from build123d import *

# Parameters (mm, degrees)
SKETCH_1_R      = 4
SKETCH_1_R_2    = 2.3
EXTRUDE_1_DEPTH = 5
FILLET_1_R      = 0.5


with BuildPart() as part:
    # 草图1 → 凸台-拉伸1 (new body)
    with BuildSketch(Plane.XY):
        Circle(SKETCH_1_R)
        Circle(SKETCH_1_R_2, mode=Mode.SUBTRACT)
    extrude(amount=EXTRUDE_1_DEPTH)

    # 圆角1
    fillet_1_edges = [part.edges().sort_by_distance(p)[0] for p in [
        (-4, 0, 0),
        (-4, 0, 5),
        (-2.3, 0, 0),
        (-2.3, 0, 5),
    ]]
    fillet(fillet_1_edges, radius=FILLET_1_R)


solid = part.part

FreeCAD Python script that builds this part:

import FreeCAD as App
import Part
import Sketcher


def edges_at(feature, points):
    """Names of the edges that pass closest to the given points."""
    edges = feature.Shape.Edges
    near = lambda p: min(range(len(edges)), key=lambda i: edges[i].distToShape(Part.Vertex(*p))[0])
    return sorted({f"Edge{near(p) + 1}" for p in points})

doc = App.newDocument("Part")
params = doc.addObject("Spreadsheet::Sheet", "Params")
for row, (alias, value) in enumerate([
    ("sketch1_diameter", "8 mm"),
    ("sketch1_diameter2", "4.6 mm"),
    ("pad1_length", "5 mm"),
    ("fillet_radius", "0.5 mm"),
], start=1):
    params.set(f"A{row}", alias)
    params.set(f"B{row}", "=" + value)
    params.setAlias(f"B{row}", alias)

body = doc.addObject("PartDesign::Body", "Body")

# Sketch on XY plane
sketch1 = body.newObject("Sketcher::SketchObject", "Sketch")
sketch1.AttachmentSupport = (doc.getObject("XY_Plane"), [""])
sketch1.MapMode = "FlatFace"
sketch1.addGeometry([
    Part.Circle(App.Vector(0, 0, 0), App.Vector(0, 0, 1), 4),
    Part.Circle(App.Vector(0, 0, 0), App.Vector(0, 0, 1), 2.3),
], False)
sketch1.addConstraint([
    Sketcher.Constraint("Coincident", 0, 3, -1, 1),
    Sketcher.Constraint("Coincident", 1, 3, -1, 1),
    Sketcher.Constraint("Diameter", 0, 8.0),
    Sketcher.Constraint("Diameter", 1, 4.6),
])
sketch1.setExpression("Constraints[2]", "Params.sketch1_diameter")
sketch1.setExpression("Constraints[3]", "Params.sketch1_diameter2")
pad1 = body.newObject("PartDesign::Pad", "Pad")
pad1.Profile = sketch1
pad1.setExpression("Length", "Params.pad1_length")
doc.recompute()

fillet = body.newObject("PartDesign::Fillet", "Fillet")
fillet.Base = (pad1, edges_at(pad1, [
    (-4, 0, 0),
    (-4, 0, 5),
    (-2.3, 0, 0),
    (-2.3, 0, 5),
]))
fillet.setExpression("Radius", "Params.fillet_radius")

doc.recompute()
